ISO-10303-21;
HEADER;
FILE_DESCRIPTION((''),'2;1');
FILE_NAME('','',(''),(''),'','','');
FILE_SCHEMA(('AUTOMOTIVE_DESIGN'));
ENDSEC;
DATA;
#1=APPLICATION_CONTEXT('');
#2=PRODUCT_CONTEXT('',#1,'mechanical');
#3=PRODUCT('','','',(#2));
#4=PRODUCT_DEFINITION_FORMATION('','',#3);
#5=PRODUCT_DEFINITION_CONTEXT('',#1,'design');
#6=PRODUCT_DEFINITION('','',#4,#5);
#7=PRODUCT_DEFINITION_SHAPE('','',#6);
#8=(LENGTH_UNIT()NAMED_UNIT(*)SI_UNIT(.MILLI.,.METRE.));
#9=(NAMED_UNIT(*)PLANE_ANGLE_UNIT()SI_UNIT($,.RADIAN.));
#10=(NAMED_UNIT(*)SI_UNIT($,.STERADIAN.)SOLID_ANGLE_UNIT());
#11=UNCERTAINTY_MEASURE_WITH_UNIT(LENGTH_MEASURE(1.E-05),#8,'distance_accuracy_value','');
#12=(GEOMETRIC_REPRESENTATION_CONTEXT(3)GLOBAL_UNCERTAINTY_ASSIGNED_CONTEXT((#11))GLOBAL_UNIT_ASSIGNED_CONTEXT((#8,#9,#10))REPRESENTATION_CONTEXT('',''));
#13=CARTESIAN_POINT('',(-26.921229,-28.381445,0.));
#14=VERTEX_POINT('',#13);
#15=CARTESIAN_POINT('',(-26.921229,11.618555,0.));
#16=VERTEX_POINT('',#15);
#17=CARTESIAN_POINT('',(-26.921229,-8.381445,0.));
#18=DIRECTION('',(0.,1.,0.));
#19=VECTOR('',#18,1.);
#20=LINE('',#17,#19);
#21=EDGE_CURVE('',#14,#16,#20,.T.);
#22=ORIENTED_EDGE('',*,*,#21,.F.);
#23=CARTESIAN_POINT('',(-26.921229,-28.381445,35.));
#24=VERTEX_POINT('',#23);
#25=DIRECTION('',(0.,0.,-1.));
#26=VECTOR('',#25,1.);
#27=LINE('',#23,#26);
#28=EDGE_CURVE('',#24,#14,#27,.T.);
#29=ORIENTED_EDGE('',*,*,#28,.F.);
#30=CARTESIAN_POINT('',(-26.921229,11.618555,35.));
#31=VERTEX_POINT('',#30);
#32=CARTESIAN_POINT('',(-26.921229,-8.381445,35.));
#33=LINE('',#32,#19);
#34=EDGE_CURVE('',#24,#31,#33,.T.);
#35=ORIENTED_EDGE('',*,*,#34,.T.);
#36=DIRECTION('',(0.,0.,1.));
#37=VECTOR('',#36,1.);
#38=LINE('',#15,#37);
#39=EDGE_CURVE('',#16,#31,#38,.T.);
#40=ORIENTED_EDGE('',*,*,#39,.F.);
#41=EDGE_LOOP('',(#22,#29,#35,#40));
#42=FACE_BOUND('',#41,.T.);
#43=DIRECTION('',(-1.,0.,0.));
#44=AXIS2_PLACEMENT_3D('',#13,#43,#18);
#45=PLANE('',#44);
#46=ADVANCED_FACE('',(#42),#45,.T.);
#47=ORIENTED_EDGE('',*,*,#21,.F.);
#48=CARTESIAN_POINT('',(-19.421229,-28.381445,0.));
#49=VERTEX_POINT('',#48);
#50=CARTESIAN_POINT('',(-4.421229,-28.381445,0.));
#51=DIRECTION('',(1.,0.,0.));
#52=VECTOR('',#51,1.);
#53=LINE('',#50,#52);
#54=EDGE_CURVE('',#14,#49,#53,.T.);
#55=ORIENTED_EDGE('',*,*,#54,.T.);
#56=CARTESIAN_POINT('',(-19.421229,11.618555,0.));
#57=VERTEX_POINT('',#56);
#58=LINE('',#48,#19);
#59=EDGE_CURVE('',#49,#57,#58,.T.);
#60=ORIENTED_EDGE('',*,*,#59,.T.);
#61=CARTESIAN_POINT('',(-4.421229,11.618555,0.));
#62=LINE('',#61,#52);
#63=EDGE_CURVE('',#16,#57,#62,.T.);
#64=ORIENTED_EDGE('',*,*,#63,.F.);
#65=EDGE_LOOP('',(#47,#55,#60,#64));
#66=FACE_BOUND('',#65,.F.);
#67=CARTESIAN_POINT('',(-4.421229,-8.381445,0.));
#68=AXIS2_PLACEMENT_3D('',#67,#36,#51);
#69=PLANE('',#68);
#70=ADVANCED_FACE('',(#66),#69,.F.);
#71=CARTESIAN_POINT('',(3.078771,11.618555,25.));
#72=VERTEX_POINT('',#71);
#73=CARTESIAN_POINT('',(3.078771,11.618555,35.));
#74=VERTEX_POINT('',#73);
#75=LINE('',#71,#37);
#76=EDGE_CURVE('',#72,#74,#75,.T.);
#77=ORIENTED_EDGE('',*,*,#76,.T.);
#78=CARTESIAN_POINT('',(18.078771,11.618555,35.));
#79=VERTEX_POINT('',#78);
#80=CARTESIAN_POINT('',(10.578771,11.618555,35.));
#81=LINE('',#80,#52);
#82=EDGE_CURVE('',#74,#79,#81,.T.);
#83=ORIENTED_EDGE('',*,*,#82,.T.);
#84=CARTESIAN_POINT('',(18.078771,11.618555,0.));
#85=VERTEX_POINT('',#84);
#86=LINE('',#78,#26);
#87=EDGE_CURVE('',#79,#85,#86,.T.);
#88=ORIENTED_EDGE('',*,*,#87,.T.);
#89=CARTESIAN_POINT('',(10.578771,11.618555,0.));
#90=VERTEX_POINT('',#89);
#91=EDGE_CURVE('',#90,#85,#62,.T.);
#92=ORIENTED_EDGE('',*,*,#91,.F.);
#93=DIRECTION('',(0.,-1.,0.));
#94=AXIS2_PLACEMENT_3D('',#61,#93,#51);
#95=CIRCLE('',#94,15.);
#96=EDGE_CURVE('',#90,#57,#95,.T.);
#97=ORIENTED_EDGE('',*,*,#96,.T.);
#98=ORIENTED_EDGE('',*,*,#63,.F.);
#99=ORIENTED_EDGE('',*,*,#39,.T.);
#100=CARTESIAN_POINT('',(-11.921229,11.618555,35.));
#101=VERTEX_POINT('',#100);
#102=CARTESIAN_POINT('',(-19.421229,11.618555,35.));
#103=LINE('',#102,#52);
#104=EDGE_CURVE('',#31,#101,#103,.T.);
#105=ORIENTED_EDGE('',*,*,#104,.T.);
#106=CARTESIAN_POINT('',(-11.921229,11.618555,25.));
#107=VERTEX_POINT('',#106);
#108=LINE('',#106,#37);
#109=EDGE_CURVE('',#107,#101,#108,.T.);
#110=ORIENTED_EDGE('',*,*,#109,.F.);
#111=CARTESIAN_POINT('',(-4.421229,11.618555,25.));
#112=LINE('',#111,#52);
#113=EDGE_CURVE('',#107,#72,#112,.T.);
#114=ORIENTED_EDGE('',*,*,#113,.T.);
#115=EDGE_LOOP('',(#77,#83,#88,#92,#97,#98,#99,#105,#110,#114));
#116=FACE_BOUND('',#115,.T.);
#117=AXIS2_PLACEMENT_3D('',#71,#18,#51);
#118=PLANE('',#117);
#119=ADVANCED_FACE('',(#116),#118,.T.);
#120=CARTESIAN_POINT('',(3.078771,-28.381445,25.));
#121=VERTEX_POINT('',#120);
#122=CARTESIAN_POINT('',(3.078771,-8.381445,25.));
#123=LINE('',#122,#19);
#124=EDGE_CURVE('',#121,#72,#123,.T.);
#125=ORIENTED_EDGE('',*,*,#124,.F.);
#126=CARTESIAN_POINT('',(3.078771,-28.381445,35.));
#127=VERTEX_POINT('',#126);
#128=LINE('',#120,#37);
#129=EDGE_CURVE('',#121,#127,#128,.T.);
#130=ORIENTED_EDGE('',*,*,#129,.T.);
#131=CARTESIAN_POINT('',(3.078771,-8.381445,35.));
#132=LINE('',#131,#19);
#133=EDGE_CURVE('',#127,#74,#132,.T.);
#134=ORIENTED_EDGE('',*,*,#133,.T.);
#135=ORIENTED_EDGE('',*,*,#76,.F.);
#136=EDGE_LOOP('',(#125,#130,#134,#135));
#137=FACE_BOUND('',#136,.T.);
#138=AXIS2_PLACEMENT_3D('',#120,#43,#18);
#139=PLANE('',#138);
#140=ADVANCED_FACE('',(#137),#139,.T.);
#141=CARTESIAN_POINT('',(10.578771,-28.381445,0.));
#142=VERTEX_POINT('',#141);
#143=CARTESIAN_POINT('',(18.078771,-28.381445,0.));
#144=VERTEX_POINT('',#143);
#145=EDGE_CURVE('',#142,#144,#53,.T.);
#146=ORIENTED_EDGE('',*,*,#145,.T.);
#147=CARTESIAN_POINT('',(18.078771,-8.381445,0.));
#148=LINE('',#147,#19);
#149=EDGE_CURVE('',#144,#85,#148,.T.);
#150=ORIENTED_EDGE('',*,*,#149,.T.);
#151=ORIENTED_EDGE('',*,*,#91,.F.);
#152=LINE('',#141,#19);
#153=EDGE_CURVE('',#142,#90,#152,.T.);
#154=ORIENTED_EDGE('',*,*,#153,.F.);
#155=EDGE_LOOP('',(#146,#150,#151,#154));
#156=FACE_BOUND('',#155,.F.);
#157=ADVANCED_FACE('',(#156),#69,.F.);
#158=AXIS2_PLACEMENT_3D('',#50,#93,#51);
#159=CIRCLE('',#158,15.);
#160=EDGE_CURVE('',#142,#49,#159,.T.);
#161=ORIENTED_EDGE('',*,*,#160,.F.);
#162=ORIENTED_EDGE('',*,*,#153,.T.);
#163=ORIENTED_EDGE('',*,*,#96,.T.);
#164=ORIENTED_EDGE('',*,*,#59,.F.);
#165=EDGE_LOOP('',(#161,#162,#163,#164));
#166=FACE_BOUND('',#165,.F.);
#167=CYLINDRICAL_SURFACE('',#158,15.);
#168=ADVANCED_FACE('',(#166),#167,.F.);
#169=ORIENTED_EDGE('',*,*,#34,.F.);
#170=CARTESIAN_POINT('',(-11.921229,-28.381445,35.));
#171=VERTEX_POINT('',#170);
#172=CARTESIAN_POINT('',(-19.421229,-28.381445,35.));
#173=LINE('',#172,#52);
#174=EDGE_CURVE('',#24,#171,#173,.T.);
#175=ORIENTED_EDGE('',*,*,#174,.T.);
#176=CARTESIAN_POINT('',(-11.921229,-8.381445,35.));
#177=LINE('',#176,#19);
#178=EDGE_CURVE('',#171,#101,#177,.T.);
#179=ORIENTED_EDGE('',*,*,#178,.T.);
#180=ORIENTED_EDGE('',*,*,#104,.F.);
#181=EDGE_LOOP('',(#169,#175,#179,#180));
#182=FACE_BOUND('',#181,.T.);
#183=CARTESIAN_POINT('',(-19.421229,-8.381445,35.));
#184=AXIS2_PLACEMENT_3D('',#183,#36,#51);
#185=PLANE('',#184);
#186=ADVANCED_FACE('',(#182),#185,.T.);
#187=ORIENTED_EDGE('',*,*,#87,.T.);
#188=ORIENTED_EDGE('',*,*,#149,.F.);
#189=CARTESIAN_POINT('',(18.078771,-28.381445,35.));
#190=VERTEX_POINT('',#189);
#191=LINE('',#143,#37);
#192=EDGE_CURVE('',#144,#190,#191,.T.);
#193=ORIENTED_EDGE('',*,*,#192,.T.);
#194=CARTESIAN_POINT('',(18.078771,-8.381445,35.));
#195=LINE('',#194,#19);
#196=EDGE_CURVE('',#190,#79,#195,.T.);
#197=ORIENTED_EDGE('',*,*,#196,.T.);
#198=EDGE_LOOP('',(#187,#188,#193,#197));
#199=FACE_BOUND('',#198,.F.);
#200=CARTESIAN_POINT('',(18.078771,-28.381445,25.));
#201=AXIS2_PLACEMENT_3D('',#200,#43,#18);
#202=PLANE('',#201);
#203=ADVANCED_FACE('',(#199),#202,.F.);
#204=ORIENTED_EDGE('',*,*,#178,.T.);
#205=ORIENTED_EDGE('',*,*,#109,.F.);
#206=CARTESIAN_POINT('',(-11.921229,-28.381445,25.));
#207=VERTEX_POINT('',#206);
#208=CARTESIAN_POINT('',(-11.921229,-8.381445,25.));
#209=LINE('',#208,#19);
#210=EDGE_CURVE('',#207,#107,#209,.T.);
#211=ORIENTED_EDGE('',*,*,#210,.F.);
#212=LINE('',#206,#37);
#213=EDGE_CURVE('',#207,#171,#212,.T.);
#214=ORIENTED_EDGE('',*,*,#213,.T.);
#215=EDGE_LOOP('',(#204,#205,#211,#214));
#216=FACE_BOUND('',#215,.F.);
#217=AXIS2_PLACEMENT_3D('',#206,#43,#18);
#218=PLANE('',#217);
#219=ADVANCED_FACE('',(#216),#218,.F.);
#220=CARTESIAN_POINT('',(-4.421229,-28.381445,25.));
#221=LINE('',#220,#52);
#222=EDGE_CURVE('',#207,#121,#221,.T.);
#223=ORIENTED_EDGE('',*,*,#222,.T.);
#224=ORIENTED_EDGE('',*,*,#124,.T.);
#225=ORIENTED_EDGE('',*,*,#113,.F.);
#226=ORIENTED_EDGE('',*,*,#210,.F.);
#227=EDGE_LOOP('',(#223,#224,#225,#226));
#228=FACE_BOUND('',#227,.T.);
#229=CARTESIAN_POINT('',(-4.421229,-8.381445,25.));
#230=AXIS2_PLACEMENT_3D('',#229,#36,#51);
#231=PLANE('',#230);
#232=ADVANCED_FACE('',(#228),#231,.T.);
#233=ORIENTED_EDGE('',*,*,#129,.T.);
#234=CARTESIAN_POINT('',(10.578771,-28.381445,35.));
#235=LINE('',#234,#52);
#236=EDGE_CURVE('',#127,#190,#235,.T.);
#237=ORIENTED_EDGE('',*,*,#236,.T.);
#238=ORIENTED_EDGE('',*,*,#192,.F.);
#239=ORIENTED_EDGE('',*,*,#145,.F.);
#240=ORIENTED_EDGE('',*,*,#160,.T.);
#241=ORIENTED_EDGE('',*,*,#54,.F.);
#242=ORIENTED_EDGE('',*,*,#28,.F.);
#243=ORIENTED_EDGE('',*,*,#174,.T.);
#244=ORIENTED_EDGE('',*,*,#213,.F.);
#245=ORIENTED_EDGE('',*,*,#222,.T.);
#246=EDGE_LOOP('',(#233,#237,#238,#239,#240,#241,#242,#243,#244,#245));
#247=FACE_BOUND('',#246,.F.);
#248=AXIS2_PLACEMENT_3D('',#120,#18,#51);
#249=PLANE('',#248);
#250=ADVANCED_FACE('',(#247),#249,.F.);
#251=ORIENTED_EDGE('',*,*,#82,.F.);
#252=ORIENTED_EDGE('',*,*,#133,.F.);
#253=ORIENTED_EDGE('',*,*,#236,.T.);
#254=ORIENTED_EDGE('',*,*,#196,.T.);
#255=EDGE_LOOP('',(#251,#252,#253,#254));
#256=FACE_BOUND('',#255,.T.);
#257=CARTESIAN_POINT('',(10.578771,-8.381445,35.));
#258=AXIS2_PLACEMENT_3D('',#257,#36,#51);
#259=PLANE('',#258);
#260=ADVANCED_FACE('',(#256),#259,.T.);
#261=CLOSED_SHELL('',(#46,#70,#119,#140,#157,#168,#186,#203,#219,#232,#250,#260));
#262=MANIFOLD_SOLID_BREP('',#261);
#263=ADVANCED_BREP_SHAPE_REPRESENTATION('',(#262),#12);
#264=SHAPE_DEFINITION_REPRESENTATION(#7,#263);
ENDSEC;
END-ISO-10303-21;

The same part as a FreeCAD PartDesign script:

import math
import FreeCAD as App
import Part
import Sketcher

doc = App.newDocument("Part")
body = doc.addObject("PartDesign::Body", "Body")

sketch1 = doc.addObject("Sketcher::SketchObject", "Sketch")
body.addObject(sketch1)
sketch1.AttachmentSupport = (doc.XY_Plane, [""])
sketch1.MapMode = "FlatFace"
sketch1.addGeometry([
    Part.LineSegment(App.Vector(-26.921229, 11.618555, 0), App.Vector(-26.921229, -28.381445, 0)),
    Part.LineSegment(App.Vector(-26.921229, -28.381445, 0), App.Vector(18.078771, -28.381445, 0)),
    Part.LineSegment(App.Vector(18.078771, -28.381445, 0), App.Vector(18.078771, 11.618555, 0)),
    Part.LineSegment(App.Vector(18.078771, 11.618555, 0), App.Vector(-26.921229, 11.618555, 0)),
], False)
sketch1.addConstraint([
    Sketcher.Constraint("Coincident", 0, 2, 1, 1),
    Sketcher.Constraint("Coincident", 1, 2, 2, 1),
    Sketcher.Constraint("Coincident", 2, 2, 3, 1),
    Sketcher.Constraint("Coincident", 3, 2, 0, 1),
    Sketcher.Constraint("Vertical", 0),
    Sketcher.Constraint("Horizontal", 1),
    Sketcher.Constraint("Vertical", 2),
    Sketcher.Constraint("Horizontal", 3),
    Sketcher.Constraint("DistanceX", 1, 1, 1, 2, 45.0),
    Sketcher.Constraint("DistanceY", 0, 2, 0, 1, 40.0),
    Sketcher.Constraint("DistanceX", 0, 2, -1, 1, 26.921229),
    Sketcher.Constraint("DistanceY", 0, 2, -1, 1, 28.381445),
])
pad1 = doc.addObject("PartDesign::Pad", "Pad")
body.addObject(pad1)
pad1.Profile = sketch1
pad1.Length = 25

sketch2 = doc.addObject("Sketcher::SketchObject", "Sketch001")
body.addObject(sketch2)
sketch2.AttachmentSupport = (doc.XY_Plane, [""])
sketch2.MapMode = "FlatFace"
sketch2.AttachmentOffset = App.Placement(App.Vector(0, 0, 25), App.Rotation())
sketch2.addGeometry([
    Part.LineSegment(App.Vector(3.078771, 11.618555, 0), App.Vector(3.078771, -28.381445, 0)),
    Part.LineSegment(App.Vector(3.078771, -28.381445, 0), App.Vector(18.078771, -28.381445, 0)),
    Part.LineSegment(App.Vector(18.078771, -28.381445, 0), App.Vector(18.078771, 11.618555, 0)),
    Part.LineSegment(App.Vector(18.078771, 11.618555, 0), App.Vector(3.078771, 11.618555, 0)),
    Part.LineSegment(App.Vector(-26.921229, 11.618555, 0), App.Vector(-26.921229, -28.381445, 0)),
    Part.LineSegment(App.Vector(-26.921229, -28.381445, 0), App.Vector(-11.921229, -28.381445, 0)),
    Part.LineSegment(App.Vector(-11.921229, -28.381445, 0), App.Vector(-11.921229, 11.618555, 0)),
    Part.LineSegment(App.Vector(-11.921229, 11.618555, 0), App.Vector(-26.921229, 11.618555, 0)),
], False)
sketch2.addConstraint([
    Sketcher.Constraint("Coincident", 0, 2, 1, 1),
    Sketcher.Constraint("Coincident", 1, 2, 2, 1),
    Sketcher.Constraint("Coincident", 2, 2, 3, 1),
    Sketcher.Constraint("Coincident", 3, 2, 0, 1),
    Sketcher.Constraint("Coincident", 4, 2, 5, 1),
    Sketcher.Constraint("Coincident", 5, 2, 6, 1),
    Sketcher.Constraint("Coincident", 6, 2, 7, 1),
    Sketcher.Constraint("Coincident", 7, 2, 4, 1),
    Sketcher.Constraint("Vertical", 0),
    Sketcher.Constraint("Horizontal", 1),
    Sketcher.Constraint("Vertical", 2),
    Sketcher.Constraint("Horizontal", 3),
    Sketcher.Constraint("Vertical", 4),
    Sketcher.Constraint("Horizontal", 5),
    Sketcher.Constraint("Vertical", 6),
    Sketcher.Constraint("Horizontal", 7),
    Sketcher.Constraint("Horizontal", 1, 2, 4, 2),
    Sketcher.Constraint("Horizontal", 3, 2, 6, 2),
    Sketcher.Constraint("Equal", 3, 5),
    Sketcher.Constraint("DistanceX", 1, 1, 1, 2, 15.0),
    Sketcher.Constraint("DistanceY", 0, 2, 0, 1, 40.0),
    Sketcher.Constraint("DistanceX", 4, 2, 0, 2, 30.0),
    Sketcher.Constraint("DistanceX", -1, 1, 0, 2, 3.078771),
    Sketcher.Constraint("DistanceY", 0, 2, -1, 1, 28.381445),
])
pad2 = doc.addObject("PartDesign::Pad", "Pad001")
body.addObject(pad2)
pad2.Profile = sketch2
pad2.Length = 10

sketch3 = doc.addObject("Sketcher::SketchObject", "Sketch002")
body.addObject(sketch3)
sketch3.AttachmentSupport = (doc.XZ_Plane, [""])
sketch3.MapMode = "FlatFace"
sketch3.AttachmentOffset = App.Placement(App.Vector(0, 0, 28.381445), App.Rotation())
sketch3.addGeometry([
    Part.LineSegment(App.Vector(-19.421229, 0, 0), App.Vector(10.578771, 0, 0)),
    Part.ArcOfCircle(Part.Circle(App.Vector(-4.421229, 0, 0), App.Vector(0, 0, 1), 15), math.radians(0), math.radians(180)),
], False)
sketch3.addConstraint([
    Sketcher.Constraint("Coincident", 0, 1, 1, 2),
    Sketcher.Constraint("Coincident", 1, 1, 0, 2),
    Sketcher.Constraint("Horizontal", 0),
    Sketcher.Constraint("PointOnObject", 1, 3, -1),
    Sketcher.Constraint("PointOnObject", 0, 1, -1),
    Sketcher.Constraint("Radius", 1, 15.0),
    Sketcher.Constraint("DistanceX", 1, 3, -1, 1, 4.421229),
])
pocket1 = doc.addObject("PartDesign::Pocket", "Pocket")
body.addObject(pocket1)
pocket1.Profile = sketch3
pocket1.Type = "ThroughAll"

doc.recompute()
